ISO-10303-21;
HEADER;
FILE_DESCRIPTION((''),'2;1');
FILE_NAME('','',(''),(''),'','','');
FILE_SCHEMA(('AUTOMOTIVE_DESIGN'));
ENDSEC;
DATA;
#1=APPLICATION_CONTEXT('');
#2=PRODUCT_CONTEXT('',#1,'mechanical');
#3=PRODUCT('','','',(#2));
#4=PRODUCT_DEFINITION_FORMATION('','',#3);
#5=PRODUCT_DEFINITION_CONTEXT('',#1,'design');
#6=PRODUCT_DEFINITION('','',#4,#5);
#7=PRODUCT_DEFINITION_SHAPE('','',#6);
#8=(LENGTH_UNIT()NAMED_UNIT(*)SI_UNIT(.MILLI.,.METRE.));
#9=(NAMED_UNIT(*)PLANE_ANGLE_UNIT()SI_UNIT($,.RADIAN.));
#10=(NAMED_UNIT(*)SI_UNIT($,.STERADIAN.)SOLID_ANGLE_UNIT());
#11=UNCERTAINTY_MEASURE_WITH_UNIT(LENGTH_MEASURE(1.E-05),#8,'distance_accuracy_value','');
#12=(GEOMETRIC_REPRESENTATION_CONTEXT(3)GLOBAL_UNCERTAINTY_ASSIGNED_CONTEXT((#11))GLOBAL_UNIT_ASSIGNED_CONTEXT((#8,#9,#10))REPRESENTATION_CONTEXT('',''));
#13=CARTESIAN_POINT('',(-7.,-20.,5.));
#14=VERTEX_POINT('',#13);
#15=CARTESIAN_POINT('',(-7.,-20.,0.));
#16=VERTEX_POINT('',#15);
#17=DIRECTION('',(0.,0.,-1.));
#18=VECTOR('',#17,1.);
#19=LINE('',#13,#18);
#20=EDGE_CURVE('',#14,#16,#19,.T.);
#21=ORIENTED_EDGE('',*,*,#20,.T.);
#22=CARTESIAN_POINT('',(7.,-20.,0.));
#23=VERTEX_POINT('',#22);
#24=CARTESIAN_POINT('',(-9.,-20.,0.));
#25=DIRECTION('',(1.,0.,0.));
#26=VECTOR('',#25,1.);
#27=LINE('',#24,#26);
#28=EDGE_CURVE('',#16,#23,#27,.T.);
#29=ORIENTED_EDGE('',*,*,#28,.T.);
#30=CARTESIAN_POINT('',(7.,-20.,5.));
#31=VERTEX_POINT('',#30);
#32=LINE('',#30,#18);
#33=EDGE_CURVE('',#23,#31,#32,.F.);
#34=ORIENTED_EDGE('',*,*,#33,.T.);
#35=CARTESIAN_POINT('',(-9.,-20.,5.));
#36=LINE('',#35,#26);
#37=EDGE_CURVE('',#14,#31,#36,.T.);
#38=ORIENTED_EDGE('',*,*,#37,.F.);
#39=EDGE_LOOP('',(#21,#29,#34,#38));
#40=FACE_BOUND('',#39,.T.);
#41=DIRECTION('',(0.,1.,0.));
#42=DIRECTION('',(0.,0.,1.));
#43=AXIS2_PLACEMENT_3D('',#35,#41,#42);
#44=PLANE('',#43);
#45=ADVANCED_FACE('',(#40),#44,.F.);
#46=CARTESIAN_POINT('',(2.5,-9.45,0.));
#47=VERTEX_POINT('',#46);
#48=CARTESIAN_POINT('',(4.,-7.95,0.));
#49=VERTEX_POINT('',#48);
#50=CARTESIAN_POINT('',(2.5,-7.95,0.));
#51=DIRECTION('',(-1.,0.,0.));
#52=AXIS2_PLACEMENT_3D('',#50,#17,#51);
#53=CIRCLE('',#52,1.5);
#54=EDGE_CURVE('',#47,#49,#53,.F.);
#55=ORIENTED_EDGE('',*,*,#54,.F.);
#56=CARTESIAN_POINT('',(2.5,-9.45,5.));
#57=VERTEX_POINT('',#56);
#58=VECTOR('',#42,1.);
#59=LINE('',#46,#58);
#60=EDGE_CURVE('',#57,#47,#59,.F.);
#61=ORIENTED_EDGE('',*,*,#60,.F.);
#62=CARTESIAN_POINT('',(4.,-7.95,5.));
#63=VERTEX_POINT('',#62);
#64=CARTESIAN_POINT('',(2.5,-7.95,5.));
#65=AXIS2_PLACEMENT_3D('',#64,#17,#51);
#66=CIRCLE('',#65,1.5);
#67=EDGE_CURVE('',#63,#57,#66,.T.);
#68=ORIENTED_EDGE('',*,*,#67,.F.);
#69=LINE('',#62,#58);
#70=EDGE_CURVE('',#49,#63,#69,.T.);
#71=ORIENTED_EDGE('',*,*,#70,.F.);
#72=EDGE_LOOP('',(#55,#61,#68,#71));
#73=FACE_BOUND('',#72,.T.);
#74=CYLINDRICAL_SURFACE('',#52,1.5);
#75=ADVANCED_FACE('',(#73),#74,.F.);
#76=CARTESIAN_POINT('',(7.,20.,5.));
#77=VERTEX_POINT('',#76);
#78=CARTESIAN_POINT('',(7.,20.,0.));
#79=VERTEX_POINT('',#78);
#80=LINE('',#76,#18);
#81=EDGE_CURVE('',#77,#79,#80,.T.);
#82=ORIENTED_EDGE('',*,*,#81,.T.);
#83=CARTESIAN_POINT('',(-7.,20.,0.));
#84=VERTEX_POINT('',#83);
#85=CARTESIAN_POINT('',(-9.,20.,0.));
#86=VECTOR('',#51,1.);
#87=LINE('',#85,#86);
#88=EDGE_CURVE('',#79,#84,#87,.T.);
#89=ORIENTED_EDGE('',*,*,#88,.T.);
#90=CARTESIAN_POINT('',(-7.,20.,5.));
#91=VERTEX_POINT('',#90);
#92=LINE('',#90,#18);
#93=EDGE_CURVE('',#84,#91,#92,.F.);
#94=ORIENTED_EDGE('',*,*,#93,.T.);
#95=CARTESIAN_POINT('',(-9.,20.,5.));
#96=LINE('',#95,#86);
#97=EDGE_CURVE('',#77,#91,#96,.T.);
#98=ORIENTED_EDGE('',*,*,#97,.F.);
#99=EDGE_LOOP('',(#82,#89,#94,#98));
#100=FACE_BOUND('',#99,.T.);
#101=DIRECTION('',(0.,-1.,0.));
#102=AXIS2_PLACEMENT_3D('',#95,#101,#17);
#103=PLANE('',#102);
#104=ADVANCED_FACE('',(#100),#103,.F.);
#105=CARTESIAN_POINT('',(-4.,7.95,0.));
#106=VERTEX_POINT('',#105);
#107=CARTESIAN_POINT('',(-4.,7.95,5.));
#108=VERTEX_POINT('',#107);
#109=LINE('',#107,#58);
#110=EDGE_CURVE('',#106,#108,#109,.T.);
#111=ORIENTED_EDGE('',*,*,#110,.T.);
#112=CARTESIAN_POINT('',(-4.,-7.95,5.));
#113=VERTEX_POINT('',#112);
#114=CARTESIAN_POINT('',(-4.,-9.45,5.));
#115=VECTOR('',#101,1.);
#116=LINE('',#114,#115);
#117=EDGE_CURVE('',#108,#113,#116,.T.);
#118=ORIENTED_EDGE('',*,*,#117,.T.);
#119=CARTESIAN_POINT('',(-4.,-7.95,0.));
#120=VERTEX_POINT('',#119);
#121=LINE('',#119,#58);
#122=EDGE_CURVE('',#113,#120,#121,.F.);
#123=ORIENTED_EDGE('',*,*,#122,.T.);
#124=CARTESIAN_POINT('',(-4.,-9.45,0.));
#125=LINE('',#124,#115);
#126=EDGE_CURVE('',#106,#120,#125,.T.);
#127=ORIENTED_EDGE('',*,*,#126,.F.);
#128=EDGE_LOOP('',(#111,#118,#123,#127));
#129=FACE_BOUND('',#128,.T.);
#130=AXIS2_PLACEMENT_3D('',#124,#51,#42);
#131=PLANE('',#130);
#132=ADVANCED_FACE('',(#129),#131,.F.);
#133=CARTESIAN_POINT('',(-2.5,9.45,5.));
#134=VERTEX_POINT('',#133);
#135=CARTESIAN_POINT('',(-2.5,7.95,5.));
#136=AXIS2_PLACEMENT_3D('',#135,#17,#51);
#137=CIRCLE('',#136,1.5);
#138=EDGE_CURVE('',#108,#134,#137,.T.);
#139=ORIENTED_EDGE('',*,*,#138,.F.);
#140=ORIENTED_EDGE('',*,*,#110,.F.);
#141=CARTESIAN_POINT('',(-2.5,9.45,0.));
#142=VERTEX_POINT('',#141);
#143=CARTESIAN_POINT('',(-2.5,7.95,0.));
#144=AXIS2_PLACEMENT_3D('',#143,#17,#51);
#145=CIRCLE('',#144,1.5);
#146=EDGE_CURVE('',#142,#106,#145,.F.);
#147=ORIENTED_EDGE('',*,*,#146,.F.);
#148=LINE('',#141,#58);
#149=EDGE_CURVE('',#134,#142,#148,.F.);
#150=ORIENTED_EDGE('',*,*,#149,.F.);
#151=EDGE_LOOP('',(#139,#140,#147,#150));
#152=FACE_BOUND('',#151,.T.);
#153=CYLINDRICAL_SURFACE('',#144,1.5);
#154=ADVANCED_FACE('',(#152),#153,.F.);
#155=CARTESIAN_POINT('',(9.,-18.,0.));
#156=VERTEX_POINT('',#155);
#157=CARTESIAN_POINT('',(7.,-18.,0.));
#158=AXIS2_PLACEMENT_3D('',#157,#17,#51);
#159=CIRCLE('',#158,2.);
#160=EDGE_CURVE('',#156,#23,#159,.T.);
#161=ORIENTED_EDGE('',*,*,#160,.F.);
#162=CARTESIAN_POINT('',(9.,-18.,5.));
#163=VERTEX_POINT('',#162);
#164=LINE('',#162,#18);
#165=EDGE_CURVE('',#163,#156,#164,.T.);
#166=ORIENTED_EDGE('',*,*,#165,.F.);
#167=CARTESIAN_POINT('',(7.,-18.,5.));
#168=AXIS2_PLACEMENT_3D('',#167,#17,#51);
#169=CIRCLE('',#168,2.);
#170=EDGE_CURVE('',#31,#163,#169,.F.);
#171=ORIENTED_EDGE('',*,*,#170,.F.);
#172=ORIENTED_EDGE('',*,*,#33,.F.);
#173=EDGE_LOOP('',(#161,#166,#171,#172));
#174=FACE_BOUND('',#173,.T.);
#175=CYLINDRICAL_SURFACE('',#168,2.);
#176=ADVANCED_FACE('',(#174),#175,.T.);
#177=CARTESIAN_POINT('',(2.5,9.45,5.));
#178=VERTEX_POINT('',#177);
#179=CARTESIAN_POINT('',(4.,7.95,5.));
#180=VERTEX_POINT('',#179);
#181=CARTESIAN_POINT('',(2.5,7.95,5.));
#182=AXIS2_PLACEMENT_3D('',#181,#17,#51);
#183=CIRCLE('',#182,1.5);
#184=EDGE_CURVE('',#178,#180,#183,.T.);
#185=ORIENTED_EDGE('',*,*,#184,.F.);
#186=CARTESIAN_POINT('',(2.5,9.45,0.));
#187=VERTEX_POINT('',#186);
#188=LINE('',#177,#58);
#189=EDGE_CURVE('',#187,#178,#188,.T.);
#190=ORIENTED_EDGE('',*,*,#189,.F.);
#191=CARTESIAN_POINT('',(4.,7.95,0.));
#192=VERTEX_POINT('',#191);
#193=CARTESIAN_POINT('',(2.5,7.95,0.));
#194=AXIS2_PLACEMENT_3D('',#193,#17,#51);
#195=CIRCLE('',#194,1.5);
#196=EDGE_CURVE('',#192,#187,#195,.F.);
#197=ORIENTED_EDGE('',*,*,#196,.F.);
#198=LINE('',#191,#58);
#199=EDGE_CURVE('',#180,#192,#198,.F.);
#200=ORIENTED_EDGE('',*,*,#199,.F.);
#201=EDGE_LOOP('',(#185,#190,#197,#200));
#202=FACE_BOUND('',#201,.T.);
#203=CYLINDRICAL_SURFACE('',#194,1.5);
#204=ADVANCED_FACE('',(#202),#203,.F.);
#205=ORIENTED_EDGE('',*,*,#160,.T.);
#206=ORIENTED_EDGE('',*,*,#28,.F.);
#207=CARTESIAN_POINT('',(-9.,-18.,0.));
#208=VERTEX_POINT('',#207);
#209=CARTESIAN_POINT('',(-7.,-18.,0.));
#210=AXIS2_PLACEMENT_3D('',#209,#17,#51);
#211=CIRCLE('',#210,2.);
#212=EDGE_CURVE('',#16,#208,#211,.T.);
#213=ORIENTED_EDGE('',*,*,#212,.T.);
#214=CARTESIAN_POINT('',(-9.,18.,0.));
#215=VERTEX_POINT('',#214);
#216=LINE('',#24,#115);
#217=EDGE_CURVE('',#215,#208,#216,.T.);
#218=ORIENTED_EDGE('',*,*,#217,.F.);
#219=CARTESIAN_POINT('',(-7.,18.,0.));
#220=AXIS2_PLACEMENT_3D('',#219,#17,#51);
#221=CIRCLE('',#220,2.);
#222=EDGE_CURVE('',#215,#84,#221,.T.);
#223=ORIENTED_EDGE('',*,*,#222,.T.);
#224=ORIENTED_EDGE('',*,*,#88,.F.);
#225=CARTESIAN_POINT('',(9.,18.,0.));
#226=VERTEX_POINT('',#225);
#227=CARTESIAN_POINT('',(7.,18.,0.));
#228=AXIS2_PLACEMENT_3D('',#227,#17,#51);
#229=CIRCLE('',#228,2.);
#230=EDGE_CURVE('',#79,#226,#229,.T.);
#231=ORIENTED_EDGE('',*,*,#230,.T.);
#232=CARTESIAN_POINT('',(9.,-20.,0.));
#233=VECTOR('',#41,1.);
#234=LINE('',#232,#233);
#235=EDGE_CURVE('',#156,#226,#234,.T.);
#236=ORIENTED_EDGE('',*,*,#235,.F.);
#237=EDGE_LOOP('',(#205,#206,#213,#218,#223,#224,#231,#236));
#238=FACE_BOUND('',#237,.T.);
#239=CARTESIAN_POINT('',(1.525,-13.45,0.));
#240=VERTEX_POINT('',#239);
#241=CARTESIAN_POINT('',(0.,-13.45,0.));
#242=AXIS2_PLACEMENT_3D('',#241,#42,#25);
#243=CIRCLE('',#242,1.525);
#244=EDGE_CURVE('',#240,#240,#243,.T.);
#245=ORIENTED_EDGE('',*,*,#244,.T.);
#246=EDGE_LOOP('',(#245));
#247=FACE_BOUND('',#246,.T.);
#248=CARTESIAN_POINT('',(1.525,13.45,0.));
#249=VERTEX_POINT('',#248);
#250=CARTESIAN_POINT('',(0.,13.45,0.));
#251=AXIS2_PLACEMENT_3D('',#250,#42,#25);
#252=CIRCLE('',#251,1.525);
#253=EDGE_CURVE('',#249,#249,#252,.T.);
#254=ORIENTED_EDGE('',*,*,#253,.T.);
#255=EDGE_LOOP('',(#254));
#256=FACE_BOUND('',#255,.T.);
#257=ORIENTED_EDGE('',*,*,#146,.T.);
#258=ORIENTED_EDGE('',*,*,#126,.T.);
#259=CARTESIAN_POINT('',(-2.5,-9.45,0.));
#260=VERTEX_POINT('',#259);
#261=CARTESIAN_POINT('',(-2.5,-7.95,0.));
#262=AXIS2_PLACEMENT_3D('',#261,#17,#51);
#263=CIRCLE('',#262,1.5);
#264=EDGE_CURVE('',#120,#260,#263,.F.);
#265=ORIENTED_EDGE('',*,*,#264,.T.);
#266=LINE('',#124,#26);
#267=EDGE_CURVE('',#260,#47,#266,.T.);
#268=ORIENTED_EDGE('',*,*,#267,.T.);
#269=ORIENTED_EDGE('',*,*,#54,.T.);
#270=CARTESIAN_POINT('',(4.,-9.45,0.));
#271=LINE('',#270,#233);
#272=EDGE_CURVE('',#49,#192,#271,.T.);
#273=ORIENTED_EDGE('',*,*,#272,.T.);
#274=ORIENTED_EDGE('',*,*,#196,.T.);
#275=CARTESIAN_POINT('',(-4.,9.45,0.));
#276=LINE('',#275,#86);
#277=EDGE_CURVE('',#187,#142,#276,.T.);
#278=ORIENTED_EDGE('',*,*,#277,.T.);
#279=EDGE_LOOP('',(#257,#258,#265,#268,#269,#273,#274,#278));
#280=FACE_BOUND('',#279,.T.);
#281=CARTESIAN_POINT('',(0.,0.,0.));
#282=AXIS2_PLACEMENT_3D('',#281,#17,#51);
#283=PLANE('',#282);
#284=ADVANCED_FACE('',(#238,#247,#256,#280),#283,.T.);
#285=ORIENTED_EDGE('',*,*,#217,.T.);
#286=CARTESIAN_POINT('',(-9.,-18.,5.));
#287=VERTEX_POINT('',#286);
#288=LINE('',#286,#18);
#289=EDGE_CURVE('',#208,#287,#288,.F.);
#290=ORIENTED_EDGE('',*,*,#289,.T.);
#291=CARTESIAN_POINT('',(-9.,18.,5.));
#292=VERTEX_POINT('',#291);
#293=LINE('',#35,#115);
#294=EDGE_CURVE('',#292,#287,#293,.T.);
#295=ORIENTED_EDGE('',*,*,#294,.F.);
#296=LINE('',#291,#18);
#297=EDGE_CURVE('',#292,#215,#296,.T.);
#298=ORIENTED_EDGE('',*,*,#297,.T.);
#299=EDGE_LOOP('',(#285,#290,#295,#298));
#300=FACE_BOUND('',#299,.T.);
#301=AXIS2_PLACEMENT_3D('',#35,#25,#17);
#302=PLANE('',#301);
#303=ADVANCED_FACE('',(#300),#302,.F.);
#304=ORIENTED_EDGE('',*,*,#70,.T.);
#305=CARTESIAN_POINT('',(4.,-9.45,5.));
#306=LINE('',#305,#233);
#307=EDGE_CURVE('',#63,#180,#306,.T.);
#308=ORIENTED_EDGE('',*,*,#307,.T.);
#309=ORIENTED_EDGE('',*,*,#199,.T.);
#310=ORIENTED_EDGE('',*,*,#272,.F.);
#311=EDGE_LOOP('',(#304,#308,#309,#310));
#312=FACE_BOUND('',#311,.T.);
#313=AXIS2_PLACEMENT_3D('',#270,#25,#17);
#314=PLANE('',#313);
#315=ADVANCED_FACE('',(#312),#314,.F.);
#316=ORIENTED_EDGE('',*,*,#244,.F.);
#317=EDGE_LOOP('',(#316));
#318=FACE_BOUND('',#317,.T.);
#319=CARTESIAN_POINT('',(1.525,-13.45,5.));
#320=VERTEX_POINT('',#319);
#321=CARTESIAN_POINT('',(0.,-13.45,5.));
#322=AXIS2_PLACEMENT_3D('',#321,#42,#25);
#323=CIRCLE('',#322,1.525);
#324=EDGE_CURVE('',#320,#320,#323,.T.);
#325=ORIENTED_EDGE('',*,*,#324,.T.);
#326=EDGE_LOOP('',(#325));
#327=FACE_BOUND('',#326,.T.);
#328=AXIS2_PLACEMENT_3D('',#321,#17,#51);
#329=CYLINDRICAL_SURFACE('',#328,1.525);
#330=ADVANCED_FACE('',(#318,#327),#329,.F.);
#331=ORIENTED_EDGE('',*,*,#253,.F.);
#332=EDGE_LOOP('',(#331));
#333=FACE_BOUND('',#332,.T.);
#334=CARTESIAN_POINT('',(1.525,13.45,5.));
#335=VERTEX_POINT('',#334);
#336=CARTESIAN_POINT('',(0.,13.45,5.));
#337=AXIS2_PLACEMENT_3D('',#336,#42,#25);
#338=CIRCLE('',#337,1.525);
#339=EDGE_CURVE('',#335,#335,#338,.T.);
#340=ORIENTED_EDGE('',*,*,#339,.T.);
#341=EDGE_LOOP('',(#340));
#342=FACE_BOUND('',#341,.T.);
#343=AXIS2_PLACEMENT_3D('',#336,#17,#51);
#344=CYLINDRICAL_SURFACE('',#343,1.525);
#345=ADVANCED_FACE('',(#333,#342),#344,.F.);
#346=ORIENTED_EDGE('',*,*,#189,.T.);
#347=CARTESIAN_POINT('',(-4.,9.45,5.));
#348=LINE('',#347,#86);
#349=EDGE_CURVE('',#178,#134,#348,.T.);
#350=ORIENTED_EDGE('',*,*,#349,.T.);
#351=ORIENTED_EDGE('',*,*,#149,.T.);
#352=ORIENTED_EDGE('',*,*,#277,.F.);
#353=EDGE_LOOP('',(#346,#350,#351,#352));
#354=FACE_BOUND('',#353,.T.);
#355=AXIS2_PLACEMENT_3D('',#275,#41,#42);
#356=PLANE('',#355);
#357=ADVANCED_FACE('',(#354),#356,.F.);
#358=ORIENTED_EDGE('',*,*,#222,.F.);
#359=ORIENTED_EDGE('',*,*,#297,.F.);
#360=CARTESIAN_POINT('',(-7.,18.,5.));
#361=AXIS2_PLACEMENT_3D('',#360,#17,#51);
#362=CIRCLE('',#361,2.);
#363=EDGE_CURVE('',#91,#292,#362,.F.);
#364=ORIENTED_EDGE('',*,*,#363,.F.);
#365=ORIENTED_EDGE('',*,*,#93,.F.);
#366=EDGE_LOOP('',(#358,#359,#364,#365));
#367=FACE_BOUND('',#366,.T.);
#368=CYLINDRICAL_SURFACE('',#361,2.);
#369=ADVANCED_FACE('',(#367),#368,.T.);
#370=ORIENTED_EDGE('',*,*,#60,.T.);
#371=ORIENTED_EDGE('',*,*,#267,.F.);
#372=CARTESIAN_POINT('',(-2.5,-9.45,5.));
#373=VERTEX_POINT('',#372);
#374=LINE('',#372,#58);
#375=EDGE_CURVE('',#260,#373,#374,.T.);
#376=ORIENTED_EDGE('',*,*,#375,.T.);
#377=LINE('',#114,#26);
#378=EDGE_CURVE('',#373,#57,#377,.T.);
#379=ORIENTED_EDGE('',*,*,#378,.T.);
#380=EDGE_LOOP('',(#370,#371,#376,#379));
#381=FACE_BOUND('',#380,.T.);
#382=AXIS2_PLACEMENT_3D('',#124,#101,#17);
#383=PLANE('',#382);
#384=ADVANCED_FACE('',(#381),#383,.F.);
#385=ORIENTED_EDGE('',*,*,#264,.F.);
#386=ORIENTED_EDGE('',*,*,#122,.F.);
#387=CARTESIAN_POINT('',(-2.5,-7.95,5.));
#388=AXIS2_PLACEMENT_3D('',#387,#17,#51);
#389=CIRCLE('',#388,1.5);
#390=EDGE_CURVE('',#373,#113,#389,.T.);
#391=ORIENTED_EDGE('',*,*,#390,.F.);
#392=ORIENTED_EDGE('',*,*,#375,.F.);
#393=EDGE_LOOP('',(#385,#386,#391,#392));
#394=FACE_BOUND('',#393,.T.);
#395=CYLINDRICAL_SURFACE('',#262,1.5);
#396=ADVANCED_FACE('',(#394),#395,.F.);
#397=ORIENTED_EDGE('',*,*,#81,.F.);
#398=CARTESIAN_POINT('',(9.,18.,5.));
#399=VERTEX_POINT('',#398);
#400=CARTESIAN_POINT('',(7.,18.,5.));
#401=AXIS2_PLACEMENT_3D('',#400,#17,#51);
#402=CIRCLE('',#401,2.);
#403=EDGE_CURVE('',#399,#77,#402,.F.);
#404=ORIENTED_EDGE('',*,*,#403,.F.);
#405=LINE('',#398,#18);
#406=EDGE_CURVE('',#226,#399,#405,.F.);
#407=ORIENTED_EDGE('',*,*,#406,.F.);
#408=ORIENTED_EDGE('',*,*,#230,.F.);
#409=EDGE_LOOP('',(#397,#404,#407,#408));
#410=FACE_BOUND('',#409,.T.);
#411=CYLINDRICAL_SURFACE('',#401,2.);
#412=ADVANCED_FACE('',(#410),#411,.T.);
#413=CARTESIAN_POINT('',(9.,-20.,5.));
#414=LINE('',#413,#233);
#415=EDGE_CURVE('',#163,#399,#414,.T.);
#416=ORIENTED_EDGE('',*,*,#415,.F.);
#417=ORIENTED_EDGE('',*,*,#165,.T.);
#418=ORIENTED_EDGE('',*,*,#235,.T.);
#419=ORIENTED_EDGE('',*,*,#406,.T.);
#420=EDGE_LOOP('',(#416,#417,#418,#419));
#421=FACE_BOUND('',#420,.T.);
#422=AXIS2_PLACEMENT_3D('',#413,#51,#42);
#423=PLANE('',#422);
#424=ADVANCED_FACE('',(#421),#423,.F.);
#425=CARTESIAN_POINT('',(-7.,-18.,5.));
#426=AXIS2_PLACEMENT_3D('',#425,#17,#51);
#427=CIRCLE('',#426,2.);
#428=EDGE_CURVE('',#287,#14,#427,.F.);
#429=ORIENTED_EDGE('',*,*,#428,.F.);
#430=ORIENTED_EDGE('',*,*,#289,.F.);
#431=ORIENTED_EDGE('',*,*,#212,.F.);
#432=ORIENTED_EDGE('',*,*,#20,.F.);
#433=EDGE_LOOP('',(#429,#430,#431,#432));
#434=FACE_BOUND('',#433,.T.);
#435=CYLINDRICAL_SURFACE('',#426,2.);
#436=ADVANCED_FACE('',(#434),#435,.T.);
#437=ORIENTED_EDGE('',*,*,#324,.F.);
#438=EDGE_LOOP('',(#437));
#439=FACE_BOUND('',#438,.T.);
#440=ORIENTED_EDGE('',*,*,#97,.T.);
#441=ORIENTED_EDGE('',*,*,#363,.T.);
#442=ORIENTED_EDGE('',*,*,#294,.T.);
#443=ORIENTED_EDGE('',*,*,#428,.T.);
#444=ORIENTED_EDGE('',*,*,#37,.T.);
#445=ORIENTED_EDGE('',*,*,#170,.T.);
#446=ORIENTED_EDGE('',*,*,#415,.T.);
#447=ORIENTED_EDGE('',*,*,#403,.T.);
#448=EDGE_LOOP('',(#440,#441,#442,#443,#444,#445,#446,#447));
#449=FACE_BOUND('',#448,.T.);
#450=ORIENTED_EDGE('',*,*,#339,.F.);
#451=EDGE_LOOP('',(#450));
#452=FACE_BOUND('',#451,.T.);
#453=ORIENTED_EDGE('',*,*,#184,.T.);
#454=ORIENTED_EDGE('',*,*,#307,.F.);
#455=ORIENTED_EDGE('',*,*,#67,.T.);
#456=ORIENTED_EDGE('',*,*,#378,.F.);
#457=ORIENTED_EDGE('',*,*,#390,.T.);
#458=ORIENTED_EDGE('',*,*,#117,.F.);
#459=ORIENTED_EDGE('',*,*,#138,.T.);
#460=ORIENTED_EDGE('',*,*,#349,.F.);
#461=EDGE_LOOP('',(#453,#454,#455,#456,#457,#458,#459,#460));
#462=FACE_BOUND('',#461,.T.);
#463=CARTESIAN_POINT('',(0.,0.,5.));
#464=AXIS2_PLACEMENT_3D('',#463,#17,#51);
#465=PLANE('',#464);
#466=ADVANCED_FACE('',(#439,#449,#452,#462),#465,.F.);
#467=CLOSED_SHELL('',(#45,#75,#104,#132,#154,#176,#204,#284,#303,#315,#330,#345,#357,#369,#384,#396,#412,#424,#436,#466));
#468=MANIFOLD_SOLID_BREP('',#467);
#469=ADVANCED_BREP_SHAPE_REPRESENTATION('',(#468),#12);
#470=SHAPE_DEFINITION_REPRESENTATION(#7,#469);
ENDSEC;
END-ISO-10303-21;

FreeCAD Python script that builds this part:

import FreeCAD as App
import Part
import Sketcher

V = App.Vector


def edges_at(feature, points):
    """Names of the edges that pass closest to the given points."""
    edges = feature.Shape.Edges
    near = lambda p: min(range(len(edges)), key=lambda i: edges[i].distToShape(Part.Vertex(*p))[0])
    return sorted({f"Edge{near(p) + 1}" for p in points})


def add_polygon(sketch, points):
    """Adds a closed chain of lines whose ends are joined by coincident constraints."""
    first, n = sketch.GeometryCount, len(points)
    for a, b in zip(points, points[1:] + points[:1]):
        sketch.addGeometry(Part.LineSegment(App.Vector(*a, 0), App.Vector(*b, 0)), False)
    for i in range(n):
        sketch.addConstraint(Sketcher.Constraint("Coincident", first + i, 2, first + (i + 1) % n, 1))

doc = App.newDocument("Part")
body = doc.addObject("PartDesign::Body", "Body")

sketch1 = body.newObject("Sketcher::SketchObject", "Sketch")
sketch1.AttachmentSupport = (doc.getObject("XY_Plane"), [""])
sketch1.MapMode = "FlatFace"
add_polygon(sketch1, [(-9, 20), (-9, -20), (9, -20), (9, 20)])
sketch1.addGeometry(Part.Circle(V(0, -13.4, 0), V(0, 0, 1), 1.5), False)
sketch1.addGeometry(Part.Circle(V(0, 13.4, 0), V(0, 0, 1), 1.5), False)
sketch1.addConstraint(Sketcher.Constraint("Vertical", 0))
sketch1.addConstraint(Sketcher.Constraint("Horizontal", 1))
sketch1.addConstraint(Sketcher.Constraint("Vertical", 2))
sketch1.addConstraint(Sketcher.Constraint("Horizontal", 3))
sketch1.addConstraint(Sketcher.Constraint("Equal", 4, 5))
sketch1.addConstraint(Sketcher.Constraint("Symmetric", 4, 3, 5, 3, -1, 1))
sketch1.addConstraint(Sketcher.Constraint("Symmetric", 0, 2, 2, 2, -1, 1))
sketch1.addConstraint(Sketcher.Constraint("PointOnObject", 4, 3, -2))
sketch1.addConstraint(Sketcher.Constraint("Diameter", 4, 3.05))
sketch1.addConstraint(Sketcher.Constraint("DistanceX", 1, 1, 1, 2, 18.0))
sketch1.addConstraint(Sketcher.Constraint("DistanceY", 0, 2, 0, 1, 40.0))
sketch1.addConstraint(Sketcher.Constraint("DistanceY", 4, 3, 5, 3, 26.9))
pad1 = body.newObject("PartDesign::Pad", "Pad")
pad1.Profile = sketch1
pad1.Length = 5
doc.recompute()

fillet = body.newObject("PartDesign::Fillet", "Fillet")
fillet.Base = (pad1, edges_at(pad1, [
    (9, -20, 2.5),
    (-9, -20, 2.5),
    (-9, 20, 2.5),
    (9, 20, 2.5),
]))
fillet.Radius = 2

sketch2 = body.newObject("Sketcher::SketchObject", "Sketch001")
sketch2.AttachmentSupport = (doc.getObject("XY_Plane"), [""])
sketch2.MapMode = "FlatFace"
sketch2.AttachmentOffset = App.Placement(V(0, 0, 5), App.Rotation())
add_polygon(sketch2, [(-4, 9), (-4, -9), (4, -9), (4, 9)])
sketch2.addConstraint(Sketcher.Constraint("Vertical", 0))
sketch2.addConstraint(Sketcher.Constraint("Horizontal", 1))
sketch2.addConstraint(Sketcher.Constraint("Vertical", 2))
sketch2.addConstraint(Sketcher.Constraint("Horizontal", 3))
sketch2.addConstraint(Sketcher.Constraint("Symmetric", 0, 2, 2, 2, -1, 1))
sketch2.addConstraint(Sketcher.Constraint("DistanceX", 1, 1, 1, 2, 8.0))
sketch2.addConstraint(Sketcher.Constraint("DistanceY", 0, 2, 0, 1, 18.9))
pocket1 = body.newObject("PartDesign::Pocket", "Pocket")
pocket1.Profile = sketch2
pocket1.Length = 5
doc.recompute()

fillet2 = body.newObject("PartDesign::Fillet", "Fillet001")
fillet2.Base = (pocket1, edges_at(pocket1, [
    (4, 9.45, 2.5),
    (4, -9.45, 2.5),
    (-4, -9.45, 2.5),
    (-4, 9.45, 2.5),
]))
fillet2.Radius = 1.5

doc.recompute()
